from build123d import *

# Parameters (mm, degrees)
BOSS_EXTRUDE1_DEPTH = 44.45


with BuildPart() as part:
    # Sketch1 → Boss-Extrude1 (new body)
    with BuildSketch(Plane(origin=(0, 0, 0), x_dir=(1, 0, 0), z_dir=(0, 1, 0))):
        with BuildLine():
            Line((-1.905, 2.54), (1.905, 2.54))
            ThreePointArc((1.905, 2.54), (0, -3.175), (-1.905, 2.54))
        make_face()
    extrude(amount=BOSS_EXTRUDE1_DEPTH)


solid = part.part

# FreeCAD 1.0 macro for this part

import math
import FreeCAD as App
import Part
import Sketcher
from FreeCAD import Vector
Q = App.Units.Quantity

doc = App.newDocument("Part")
body = doc.addObject("PartDesign::Body", "Body")

# Sketch on XZ plane
sketch1 = doc.addObject("Sketcher::SketchObject", "Sketch")
body.addObject(sketch1)
sketch1.AttachmentSupport = (doc.XZ_Plane, [""])
sketch1.MapMode = "FlatFace"
sketch1.addGeometry(Part.LineSegment(Vector(1.905, -2.54, 0), Vector(-1.905, -2.54, 0)), False)
sketch1.addGeometry(Part.ArcOfCircle(Part.Circle(Vector(0, 0, 0), Vector(0, 0, 1), 3.175), math.radians(-53.130102), math.radians(233.130102)), False)
sketch1.addConstraint(Sketcher.Constraint("Coincident", 0, 1, 1, 1))
sketch1.addConstraint(Sketcher.Constraint("Coincident", 1, 2, 0, 2))
sketch1.addConstraint(Sketcher.Constraint("Horizontal", 0))
sketch1.addConstraint(Sketcher.Constraint("Coincident", 1, 3, -1, 1))
sketch1.addConstraint(Sketcher.Constraint("Radius", 1, Q("0.125 in")))
sketch1.addConstraint(Sketcher.Constraint("DistanceX", 0, 2, 0, 1, Q("0.15 in")))
pad1 = doc.addObject("PartDesign::Pad", "Pad")
body.addObject(pad1)
pad1.Profile = sketch1
pad1.Length = Q("1.75 in")
pad1.Reversed = True

doc.recompute()
